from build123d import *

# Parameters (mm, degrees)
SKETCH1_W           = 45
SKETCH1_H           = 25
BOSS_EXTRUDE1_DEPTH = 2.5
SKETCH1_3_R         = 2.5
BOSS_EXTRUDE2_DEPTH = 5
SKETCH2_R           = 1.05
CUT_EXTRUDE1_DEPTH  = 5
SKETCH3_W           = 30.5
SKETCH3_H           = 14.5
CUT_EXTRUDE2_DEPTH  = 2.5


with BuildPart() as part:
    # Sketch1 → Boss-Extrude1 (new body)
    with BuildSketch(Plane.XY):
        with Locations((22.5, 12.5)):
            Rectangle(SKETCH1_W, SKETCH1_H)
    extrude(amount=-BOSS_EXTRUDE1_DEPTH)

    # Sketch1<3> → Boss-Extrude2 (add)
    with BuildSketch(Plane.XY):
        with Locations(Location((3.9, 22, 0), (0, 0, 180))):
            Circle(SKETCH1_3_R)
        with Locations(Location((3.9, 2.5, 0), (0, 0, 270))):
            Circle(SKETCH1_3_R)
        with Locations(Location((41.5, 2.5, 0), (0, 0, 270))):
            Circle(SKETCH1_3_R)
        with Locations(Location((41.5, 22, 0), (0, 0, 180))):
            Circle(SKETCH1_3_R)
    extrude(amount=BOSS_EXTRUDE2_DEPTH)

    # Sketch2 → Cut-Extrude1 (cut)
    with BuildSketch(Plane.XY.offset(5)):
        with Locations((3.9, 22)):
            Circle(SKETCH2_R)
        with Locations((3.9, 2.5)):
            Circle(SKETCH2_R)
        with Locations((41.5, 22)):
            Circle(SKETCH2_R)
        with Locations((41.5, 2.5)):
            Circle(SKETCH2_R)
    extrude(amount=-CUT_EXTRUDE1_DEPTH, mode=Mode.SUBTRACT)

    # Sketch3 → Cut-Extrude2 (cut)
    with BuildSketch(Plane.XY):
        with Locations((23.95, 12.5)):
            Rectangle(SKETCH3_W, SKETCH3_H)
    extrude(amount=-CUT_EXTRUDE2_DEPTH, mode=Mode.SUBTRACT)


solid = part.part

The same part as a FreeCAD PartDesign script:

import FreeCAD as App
import Part
import Sketcher

V = App.Vector


def add_polygon(sketch, points):
    """Adds a closed chain of lines whose ends are joined by coincident constraints."""
    first, n = sketch.GeometryCount, len(points)
    for a, b in zip(points, points[1:] + points[:1]):
        sketch.addGeometry(Part.LineSegment(App.Vector(*a, 0), App.Vector(*b, 0)), False)
    for i in range(n):
        sketch.addConstraint(Sketcher.Constraint("Coincident", first + i, 2, first + (i + 1) % n, 1))

doc = App.newDocument("Part")
params = doc.addObject("Spreadsheet::Sheet", "Params")
for row, (alias, value) in enumerate([
    ("sketch1_width", "45 mm"),
    ("sketch1_height", "25 mm"),
    ("pad1_length", "2.5 mm"),
    ("sketch2_diameter", "5 mm"),
    ("pad2_length", "5 mm"),
    ("sketch3_diameter", "2.1 mm"),
    ("pocket1_length", "5 mm"),
    ("sketch4_width", "30.5 mm"),
    ("sketch4_height", "14.5 mm"),
    ("pocket2_length", "2.5 mm"),
], start=1):
    params.set(f"A{row}", alias)
    params.set(f"B{row}", "=" + value)
    params.setAlias(f"B{row}", alias)

body = doc.addObject("PartDesign::Body", "Body")

# Sketch on XY plane
sketch1 = doc.addObject("Sketcher::SketchObject", "Sketch")
body.addObject(sketch1)
sketch1.AttachmentSupport = (doc.XY_Plane, [""])
sketch1.MapMode = "FlatFace"
add_polygon(sketch1, [(0, 25), (0, 0), (45, 0), (45, 25)])  # lines 0-3
sketch1.addConstraint(Sketcher.Constraint("Vertical", 0))
sketch1.addConstraint(Sketcher.Constraint("Horizontal", 1))
sketch1.addConstraint(Sketcher.Constraint("Vertical", 2))
sketch1.addConstraint(Sketcher.Constraint("Horizontal", 3))
sketch1.addConstraint(Sketcher.Constraint("Coincident", 0, 2, -1, 1))
sketch1.addConstraint(Sketcher.Constraint("DistanceX", 1, 1, 1, 2, 45.0))
sketch1.addConstraint(Sketcher.Constraint("DistanceY", 0, 2, 0, 1, 25.0))
sketch1.setExpression("Constraints[9]", "Params.sketch1_width")
sketch1.setExpression("Constraints[10]", "Params.sketch1_height")
pad1 = doc.addObject("PartDesign::Pad", "Pad")
body.addObject(pad1)
pad1.Profile = sketch1
pad1.setExpression("Length", "Params.pad1_length")
pad1.Reversed = True

# Sketch on XY plane
sketch2 = doc.addObject("Sketcher::SketchObject", "Sketch001")
body.addObject(sketch2)
sketch2.AttachmentSupport = (doc.XY_Plane, [""])
sketch2.MapMode = "FlatFace"
sketch2.addGeometry(Part.Circle(V(3.9, 22, 0), V(0, 0, 1), 2.5), False)
sketch2.addGeometry(Part.Circle(V(3.9, 2.5, 0), V(0, 0, 1), 2.5), False)
sketch2.addGeometry(Part.Circle(V(41.5, 2.5, 0), V(0, 0, 1), 2.5), False)
sketch2.addGeometry(Part.Circle(V(41.5, 22, 0), V(0, 0, 1), 2.5), False)
sketch2.addConstraint(Sketcher.Constraint("Equal", 0, 1))
sketch2.addConstraint(Sketcher.Constraint("Equal", 1, 2))
sketch2.addConstraint(Sketcher.Constraint("Equal", 2, 3))
sketch2.addConstraint(Sketcher.Constraint("Horizontal", 1, 3, 2, 3))
sketch2.addConstraint(Sketcher.Constraint("Horizontal", 0, 3, 3, 3))
sketch2.addConstraint(Sketcher.Constraint("Vertical", 0, 3, 1, 3))
sketch2.addConstraint(Sketcher.Constraint("Vertical", 2, 3, 3, 3))
sketch2.addConstraint(Sketcher.Constraint("Diameter", 0, 5.0))
sketch2.addConstraint(Sketcher.Constraint("DistanceY", -1, 1, 0, 3, 22.0))
sketch2.addConstraint(Sketcher.Constraint("DistanceX", -1, 1, 0, 3, 3.9))
sketch2.addConstraint(Sketcher.Constraint("DistanceY", -1, 1, 1, 3, 2.5))
sketch2.addConstraint(Sketcher.Constraint("DistanceX", -1, 1, 2, 3, 41.5))
sketch2.setExpression("Constraints[7]", "Params.sketch2_diameter")
pad2 = doc.addObject("PartDesign::Pad", "Pad001")
body.addObject(pad2)
pad2.Profile = sketch2
pad2.setExpression("Length", "Params.pad2_length")

# Sketch on XY plane
sketch3 = doc.addObject("Sketcher::SketchObject", "Sketch002")
body.addObject(sketch3)
sketch3.AttachmentSupport = (doc.XY_Plane, [""])
sketch3.MapMode = "FlatFace"
sketch3.AttachmentOffset = App.Placement(V(0, 0, 5), App.Rotation())
sketch3.addGeometry(Part.Circle(V(3.9, 22, 0), V(0, 0, 1), 1.1), False)
sketch3.addGeometry(Part.Circle(V(3.9, 2.5, 0), V(0, 0, 1), 1.1), False)
sketch3.addGeometry(Part.Circle(V(41.5, 22, 0), V(0, 0, 1), 1.1), False)
sketch3.addGeometry(Part.Circle(V(41.5, 2.5, 0), V(0, 0, 1), 1.1), False)
sketch3.addConstraint(Sketcher.Constraint("Equal", 0, 1))
sketch3.addConstraint(Sketcher.Constraint("Equal", 1, 2))
sketch3.addConstraint(Sketcher.Constraint("Equal", 2, 3))
sketch3.addConstraint(Sketcher.Constraint("Horizontal", 0, 3, 2, 3))
sketch3.addConstraint(Sketcher.Constraint("Horizontal", 1, 3, 3, 3))
sketch3.addConstraint(Sketcher.Constraint("Vertical", 0, 3, 1, 3))
sketch3.addConstraint(Sketcher.Constraint("Vertical", 2, 3, 3, 3))
sketch3.addConstraint(Sketcher.Constraint("Diameter", 0, 2.1))
sketch3.addConstraint(Sketcher.Constraint("DistanceY", -1, 1, 0, 3, 22.0))
sketch3.addConstraint(Sketcher.Constraint("DistanceX", -1, 1, 0, 3, 3.9))
sketch3.addConstraint(Sketcher.Constraint("DistanceY", -1, 1, 1, 3, 2.5))
sketch3.addConstraint(Sketcher.Constraint("DistanceX", -1, 1, 2, 3, 41.5))
sketch3.setExpression("Constraints[7]", "Params.sketch3_diameter")
pocket1 = doc.addObject("PartDesign::Pocket", "Pocket")
body.addObject(pocket1)
pocket1.Profile = sketch3
pocket1.setExpression("Length", "Params.pocket1_length")

# Sketch on XY plane
sketch4 = doc.addObject("Sketcher::SketchObject", "Sketch003")
body.addObject(sketch4)
sketch4.AttachmentSupport = (doc.XY_Plane, [""])
sketch4.MapMode = "FlatFace"
add_polygon(sketch4, [(9, 20), (9, 5), (39, 5), (39, 20)])  # lines 0-3
sketch4.addConstraint(Sketcher.Constraint("Vertical", 0))
sketch4.addConstraint(Sketcher.Constraint("Horizontal", 1))
sketch4.addConstraint(Sketcher.Constraint("Vertical", 2))
sketch4.addConstraint(Sketcher.Constraint("Horizontal", 3))
sketch4.addConstraint(Sketcher.Constraint("DistanceX", 1, 1, 1, 2, 30.5))
sketch4.addConstraint(Sketcher.Constraint("DistanceY", 0, 2, 0, 1, 14.5))
sketch4.addConstraint(Sketcher.Constraint("DistanceX", -1, 1, 0, 2, 8.7))
sketch4.addConstraint(Sketcher.Constraint("DistanceY", -1, 1, 0, 2, 5.25))
sketch4.setExpression("Constraints[8]", "Params.sketch4_width")
sketch4.setExpression("Constraints[9]", "Params.sketch4_height")
pocket2 = doc.addObject("PartDesign::Pocket", "Pocket001")
body.addObject(pocket2)
pocket2.Profile = sketch4
pocket2.setExpression("Length", "Params.pocket2_length")

doc.recompute()
